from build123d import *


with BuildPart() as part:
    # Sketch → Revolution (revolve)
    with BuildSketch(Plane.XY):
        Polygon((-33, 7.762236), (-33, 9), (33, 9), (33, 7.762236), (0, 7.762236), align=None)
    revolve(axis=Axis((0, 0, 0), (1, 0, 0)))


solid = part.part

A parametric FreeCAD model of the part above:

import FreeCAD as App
import Part
import Sketcher


def add_polygon(sketch, points):
    """Adds a closed chain of lines whose ends are joined by coincident constraints."""
    first, n = sketch.GeometryCount, len(points)
    for a, b in zip(points, points[1:] + points[:1]):
        sketch.addGeometry(Part.LineSegment(App.Vector(*a, 0), App.Vector(*b, 0)), False)
    for i in range(n):
        sketch.addConstraint(Sketcher.Constraint("Coincident", first + i, 2, first + (i + 1) % n, 1))

doc = App.newDocument("Part")
body = doc.addObject("PartDesign::Body", "Body")

# Sketch on XY plane
sketch1 = body.newObject("Sketcher::SketchObject", "Sketch")
sketch1.AttachmentSupport = (doc.getObject("XY_Plane"), [""])
sketch1.MapMode = "FlatFace"
add_polygon(sketch1, [(-33, 9), (-33, 7.8), (33, 7.8), (33, 9)])  # lines 0-3
sketch1.addConstraint([
    Sketcher.Constraint("Vertical", 0),
    Sketcher.Constraint("Horizontal", 1),
    Sketcher.Constraint("Vertical", 2),
    Sketcher.Constraint("Horizontal", 3),
    Sketcher.Constraint("DistanceX", 1, 1, 1, 2, 66.0),
    Sketcher.Constraint("DistanceX", 0, 2, -1, 1, 33.0),
    Sketcher.Constraint("DistanceY", -1, 1, 2, 2, 9.0),
    Sketcher.Constraint("DistanceY", 0, 2, 0, 1, 1.237764),
])
revolution = body.newObject("PartDesign::Revolution", "Revolution")
revolution.Profile = sketch1
revolution.ReferenceAxis = (sketch1, ["H_Axis"])
revolution.Angle = 360

doc.recompute()
